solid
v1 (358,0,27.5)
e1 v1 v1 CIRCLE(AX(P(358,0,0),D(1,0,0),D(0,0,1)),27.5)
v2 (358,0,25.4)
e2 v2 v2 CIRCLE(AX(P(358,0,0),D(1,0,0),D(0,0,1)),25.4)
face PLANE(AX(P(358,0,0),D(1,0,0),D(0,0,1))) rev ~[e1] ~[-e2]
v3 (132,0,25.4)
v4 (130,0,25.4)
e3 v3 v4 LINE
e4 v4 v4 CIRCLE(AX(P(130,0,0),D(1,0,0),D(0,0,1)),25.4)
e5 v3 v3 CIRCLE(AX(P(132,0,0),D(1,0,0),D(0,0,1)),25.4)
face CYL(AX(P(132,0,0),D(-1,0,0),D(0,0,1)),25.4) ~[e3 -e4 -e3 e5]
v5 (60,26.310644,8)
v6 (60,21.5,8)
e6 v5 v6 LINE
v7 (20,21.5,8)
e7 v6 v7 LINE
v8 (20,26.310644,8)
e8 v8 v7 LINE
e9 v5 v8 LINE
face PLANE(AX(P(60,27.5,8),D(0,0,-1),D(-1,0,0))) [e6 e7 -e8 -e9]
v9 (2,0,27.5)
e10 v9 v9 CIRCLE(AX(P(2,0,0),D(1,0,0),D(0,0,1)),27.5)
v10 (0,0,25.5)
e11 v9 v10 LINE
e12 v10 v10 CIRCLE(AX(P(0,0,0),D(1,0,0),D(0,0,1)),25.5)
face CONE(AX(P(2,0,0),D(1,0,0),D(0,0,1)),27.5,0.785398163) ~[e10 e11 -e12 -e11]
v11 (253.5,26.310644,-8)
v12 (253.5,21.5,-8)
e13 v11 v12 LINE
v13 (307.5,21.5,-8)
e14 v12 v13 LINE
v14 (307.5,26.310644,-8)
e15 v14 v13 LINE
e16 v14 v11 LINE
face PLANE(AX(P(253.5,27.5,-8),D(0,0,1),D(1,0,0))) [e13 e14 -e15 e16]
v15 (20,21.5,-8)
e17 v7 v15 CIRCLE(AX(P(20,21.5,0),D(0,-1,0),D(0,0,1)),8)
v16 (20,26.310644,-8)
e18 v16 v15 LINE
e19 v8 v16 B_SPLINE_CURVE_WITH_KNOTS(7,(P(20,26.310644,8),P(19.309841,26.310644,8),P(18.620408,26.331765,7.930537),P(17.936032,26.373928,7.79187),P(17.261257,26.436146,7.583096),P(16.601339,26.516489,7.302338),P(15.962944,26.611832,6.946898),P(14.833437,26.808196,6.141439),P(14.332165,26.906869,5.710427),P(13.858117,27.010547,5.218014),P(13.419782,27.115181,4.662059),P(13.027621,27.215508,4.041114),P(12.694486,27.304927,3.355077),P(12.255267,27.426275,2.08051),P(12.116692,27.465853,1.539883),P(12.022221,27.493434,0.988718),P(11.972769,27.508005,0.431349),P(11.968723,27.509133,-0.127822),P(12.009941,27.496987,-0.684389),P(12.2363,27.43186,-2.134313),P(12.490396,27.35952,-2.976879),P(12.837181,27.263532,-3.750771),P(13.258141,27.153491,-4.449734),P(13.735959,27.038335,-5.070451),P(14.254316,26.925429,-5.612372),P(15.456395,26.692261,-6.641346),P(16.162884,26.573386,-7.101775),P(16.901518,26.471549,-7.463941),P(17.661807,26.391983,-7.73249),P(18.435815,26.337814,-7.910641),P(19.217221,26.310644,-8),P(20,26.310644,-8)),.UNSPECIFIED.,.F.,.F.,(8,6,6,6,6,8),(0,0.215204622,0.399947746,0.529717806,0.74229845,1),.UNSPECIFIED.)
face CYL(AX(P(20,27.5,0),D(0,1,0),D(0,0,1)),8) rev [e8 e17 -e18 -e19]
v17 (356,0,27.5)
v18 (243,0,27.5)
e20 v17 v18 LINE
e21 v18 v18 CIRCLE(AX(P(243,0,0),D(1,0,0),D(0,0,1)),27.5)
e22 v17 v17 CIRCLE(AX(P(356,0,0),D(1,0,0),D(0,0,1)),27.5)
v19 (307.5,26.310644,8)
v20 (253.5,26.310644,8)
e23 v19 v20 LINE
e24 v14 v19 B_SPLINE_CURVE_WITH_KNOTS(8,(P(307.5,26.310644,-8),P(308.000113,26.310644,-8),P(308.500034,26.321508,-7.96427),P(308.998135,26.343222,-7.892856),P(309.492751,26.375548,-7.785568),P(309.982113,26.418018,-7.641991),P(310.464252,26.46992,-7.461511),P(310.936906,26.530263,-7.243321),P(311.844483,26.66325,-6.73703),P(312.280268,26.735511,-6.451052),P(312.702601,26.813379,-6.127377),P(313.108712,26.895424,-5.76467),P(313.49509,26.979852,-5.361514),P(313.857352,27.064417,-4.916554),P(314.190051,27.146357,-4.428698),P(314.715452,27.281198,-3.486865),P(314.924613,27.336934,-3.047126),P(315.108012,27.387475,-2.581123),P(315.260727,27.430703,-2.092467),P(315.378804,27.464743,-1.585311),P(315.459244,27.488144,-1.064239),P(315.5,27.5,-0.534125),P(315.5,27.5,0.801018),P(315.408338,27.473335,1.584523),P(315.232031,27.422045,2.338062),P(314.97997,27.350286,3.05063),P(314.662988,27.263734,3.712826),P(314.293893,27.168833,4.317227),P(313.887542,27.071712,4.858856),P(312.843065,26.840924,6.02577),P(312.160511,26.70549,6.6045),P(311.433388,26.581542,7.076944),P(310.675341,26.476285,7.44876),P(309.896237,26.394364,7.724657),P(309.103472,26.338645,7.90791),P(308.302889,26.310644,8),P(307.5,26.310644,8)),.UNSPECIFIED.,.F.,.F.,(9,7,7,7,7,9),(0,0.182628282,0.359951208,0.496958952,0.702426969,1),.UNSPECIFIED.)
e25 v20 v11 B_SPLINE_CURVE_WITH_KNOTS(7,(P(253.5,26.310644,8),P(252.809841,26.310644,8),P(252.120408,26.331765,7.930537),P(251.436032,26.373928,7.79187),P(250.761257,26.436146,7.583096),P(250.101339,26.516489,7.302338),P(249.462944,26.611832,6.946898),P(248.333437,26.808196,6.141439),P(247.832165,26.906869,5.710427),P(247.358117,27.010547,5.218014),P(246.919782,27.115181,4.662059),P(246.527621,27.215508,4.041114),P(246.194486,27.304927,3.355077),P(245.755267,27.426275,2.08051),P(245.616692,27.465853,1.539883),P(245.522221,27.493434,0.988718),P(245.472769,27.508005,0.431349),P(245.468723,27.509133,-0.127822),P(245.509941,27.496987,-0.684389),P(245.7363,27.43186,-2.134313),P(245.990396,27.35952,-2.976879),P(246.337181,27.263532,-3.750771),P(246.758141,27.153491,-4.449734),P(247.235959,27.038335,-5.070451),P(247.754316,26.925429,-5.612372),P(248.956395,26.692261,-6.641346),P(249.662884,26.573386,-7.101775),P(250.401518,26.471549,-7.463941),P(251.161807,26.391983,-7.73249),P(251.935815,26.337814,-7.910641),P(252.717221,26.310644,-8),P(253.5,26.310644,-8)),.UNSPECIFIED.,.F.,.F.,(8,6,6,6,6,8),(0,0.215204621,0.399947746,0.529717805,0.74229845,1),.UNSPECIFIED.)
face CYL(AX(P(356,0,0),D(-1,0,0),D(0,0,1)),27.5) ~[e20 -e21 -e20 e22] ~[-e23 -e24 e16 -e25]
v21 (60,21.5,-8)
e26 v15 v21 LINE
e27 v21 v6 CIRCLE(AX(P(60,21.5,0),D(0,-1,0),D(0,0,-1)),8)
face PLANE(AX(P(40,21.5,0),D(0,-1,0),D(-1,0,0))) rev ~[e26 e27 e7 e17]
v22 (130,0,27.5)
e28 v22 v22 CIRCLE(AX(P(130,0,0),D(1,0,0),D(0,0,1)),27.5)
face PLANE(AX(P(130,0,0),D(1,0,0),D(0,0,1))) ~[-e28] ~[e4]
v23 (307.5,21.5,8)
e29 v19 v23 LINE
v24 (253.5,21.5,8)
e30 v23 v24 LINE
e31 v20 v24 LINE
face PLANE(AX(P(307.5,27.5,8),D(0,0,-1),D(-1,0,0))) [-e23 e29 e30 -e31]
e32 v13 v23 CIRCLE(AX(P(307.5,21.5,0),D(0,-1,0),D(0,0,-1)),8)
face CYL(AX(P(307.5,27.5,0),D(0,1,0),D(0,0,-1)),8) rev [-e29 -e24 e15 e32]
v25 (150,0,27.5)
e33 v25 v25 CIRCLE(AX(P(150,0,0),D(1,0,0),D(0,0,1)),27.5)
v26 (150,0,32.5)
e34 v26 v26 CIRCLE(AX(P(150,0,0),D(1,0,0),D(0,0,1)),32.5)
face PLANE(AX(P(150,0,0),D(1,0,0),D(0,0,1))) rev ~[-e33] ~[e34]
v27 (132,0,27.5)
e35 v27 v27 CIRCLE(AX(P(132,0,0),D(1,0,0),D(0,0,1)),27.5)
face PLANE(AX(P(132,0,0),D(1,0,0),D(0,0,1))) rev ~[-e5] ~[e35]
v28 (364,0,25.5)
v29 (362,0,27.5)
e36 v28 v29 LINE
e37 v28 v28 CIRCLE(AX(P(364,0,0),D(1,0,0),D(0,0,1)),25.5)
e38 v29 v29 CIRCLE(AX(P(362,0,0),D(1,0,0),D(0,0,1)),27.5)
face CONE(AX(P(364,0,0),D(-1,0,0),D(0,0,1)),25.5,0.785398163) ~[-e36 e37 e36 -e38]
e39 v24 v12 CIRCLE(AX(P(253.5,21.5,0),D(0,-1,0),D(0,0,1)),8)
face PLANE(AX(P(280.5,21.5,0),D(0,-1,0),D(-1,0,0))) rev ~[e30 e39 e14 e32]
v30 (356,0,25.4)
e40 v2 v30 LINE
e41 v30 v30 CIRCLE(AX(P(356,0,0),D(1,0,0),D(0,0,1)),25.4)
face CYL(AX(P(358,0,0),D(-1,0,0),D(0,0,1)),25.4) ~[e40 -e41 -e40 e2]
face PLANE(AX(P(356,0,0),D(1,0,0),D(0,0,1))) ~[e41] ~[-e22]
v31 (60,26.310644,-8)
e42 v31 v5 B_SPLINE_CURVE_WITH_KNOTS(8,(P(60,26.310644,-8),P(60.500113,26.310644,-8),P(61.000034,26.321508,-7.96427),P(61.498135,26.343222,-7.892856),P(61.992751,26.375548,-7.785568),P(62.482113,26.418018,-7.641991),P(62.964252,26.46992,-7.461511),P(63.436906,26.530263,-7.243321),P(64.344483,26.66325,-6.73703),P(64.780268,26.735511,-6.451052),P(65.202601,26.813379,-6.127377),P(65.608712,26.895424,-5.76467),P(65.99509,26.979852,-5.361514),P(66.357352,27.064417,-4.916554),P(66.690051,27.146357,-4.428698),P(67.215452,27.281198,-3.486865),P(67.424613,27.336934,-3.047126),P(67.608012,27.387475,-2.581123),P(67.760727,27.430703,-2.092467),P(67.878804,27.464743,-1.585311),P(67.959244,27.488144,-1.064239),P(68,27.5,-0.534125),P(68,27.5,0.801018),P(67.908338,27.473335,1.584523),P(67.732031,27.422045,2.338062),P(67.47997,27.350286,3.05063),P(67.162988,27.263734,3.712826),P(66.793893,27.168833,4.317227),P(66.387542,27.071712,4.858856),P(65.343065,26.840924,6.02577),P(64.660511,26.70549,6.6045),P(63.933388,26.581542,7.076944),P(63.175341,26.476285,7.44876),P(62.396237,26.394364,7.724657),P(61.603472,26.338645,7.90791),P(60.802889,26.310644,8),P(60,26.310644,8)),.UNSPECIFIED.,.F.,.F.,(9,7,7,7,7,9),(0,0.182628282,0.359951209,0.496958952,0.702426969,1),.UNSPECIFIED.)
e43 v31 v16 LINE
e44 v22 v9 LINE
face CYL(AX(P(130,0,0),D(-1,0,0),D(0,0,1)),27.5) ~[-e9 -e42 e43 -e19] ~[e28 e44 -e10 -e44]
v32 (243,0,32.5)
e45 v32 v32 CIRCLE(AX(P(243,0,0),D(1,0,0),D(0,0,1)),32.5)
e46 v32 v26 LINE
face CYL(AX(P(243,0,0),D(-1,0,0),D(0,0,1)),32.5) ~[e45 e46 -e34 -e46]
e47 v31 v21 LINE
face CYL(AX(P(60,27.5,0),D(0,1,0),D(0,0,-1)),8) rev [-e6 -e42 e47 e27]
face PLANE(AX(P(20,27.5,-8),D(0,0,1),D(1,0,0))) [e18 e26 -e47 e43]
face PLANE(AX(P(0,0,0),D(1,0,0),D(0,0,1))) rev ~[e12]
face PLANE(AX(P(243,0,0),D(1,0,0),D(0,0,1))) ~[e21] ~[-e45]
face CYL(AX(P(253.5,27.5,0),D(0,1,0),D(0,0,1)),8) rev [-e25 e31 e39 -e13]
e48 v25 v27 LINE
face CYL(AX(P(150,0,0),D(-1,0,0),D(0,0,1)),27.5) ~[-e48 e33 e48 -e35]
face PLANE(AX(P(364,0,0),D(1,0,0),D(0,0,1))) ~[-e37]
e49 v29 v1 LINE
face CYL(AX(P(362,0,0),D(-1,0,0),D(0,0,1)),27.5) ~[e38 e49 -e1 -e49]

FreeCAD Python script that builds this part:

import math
import FreeCAD as App
import Part
import Sketcher

V = App.Vector


def add_polygon(sketch, points):
    """Adds a closed chain of lines whose ends are joined by coincident constraints."""
    first, n = sketch.GeometryCount, len(points)
    for a, b in zip(points, points[1:] + points[:1]):
        sketch.addGeometry(Part.LineSegment(App.Vector(*a, 0), App.Vector(*b, 0)), False)
    for i in range(n):
        sketch.addConstraint(Sketcher.Constraint("Coincident", first + i, 2, first + (i + 1) % n, 1))

doc = App.newDocument("Part")
body = doc.addObject("PartDesign::Body", "Body")

sketch1 = body.newObject("Sketcher::SketchObject", "Sketch")
sketch1.AttachmentSupport = (doc.getObject("XY_Plane"), [""])
sketch1.MapMode = "FlatFace"
add_polygon(sketch1, [(0, 0), (364, 0), (364, 25.5), (362, 27.5), (358, 27.5), (358, 25.4), (356, 25.4), (356, 27.5), (243, 27.5), (243, 32.5), (150, 32.5), (150, 27.5), (132, 27.5), (132, 25.4), (130, 25.4), (130, 27.5), (2, 27.5), (0, 25.5)])
sketch1.addConstraint(Sketcher.Constraint("Horizontal", 0))
sketch1.addConstraint(Sketcher.Constraint("Vertical", 1))
sketch1.addConstraint(Sketcher.Constraint("Horizontal", 3))
sketch1.addConstraint(Sketcher.Constraint("Vertical", 4))
sketch1.addConstraint(Sketcher.Constraint("Horizontal", 5))
sketch1.addConstraint(Sketcher.Constraint("Vertical", 6))
sketch1.addConstraint(Sketcher.Constraint("Horizontal", 7))
sketch1.addConstraint(Sketcher.Constraint("Vertical", 8))
sketch1.addConstraint(Sketcher.Constraint("Horizontal", 9))
sketch1.addConstraint(Sketcher.Constraint("Vertical", 10))
sketch1.addConstraint(Sketcher.Constraint("Horizontal", 11))
sketch1.addConstraint(Sketcher.Constraint("Vertical", 12))
sketch1.addConstraint(Sketcher.Constraint("Horizontal", 13))
sketch1.addConstraint(Sketcher.Constraint("Vertical", 14))
sketch1.addConstraint(Sketcher.Constraint("Horizontal", 15))
sketch1.addConstraint(Sketcher.Constraint("Vertical", 17))
sketch1.addConstraint(Sketcher.Constraint("Coincident", 17, 2, -1, 1))
sketch1.addConstraint(Sketcher.Constraint("Perpendicular", 2, 16))
sketch1.addConstraint(Sketcher.Constraint("Horizontal", 3, 2, 6, 2))
sketch1.addConstraint(Sketcher.Constraint("Horizontal", 7, 2, 10, 2))
sketch1.addConstraint(Sketcher.Constraint("Horizontal", 5, 2, 12, 2))
sketch1.addConstraint(Sketcher.Constraint("Horizontal", 11, 2, 14, 2))
sketch1.addConstraint(Sketcher.Constraint("Horizontal", 1, 2, 16, 2))
sketch1.addConstraint(Sketcher.Constraint("Equal", 5, 13))
sketch1.addConstraint(Sketcher.Constraint("Equal", 2, 16))
sketch1.addConstraint(Sketcher.Constraint("DistanceX", 0, 1, 0, 2, 364.0))
sketch1.addConstraint(Sketcher.Constraint("DistanceX", 3, 2, 3, 1, 4.0))
sketch1.addConstraint(Sketcher.Constraint("DistanceX", 5, 2, 5, 1, 2.0))
sketch1.addConstraint(Sketcher.Constraint("DistanceX", 7, 2, 7, 1, 113.0))
sketch1.addConstraint(Sketcher.Constraint("DistanceX", 9, 2, 9, 1, 93.0))
sketch1.addConstraint(Sketcher.Constraint("DistanceX", 11, 2, 11, 1, 18.0))
sketch1.addConstraint(Sketcher.Constraint("DistanceX", 15, 2, 15, 1, 128.0))
sketch1.addConstraint(Sketcher.Constraint("DistanceY", 8, 1, 8, 2, 5.0))
sketch1.addConstraint(Sketcher.Constraint("DistanceY", 1, 1, 1, 2, 25.5))
sketch1.addConstraint(Sketcher.Constraint("DistanceY", 4, 2, 4, 1, 2.1))
revolution = body.newObject("PartDesign::Revolution", "Revolution")
revolution.Profile = sketch1
revolution.ReferenceAxis = (sketch1, ["H_Axis"])
revolution.Angle = 360

sketch2 = body.newObject("Sketcher::SketchObject", "Sketch001")
sketch2.AttachmentSupport = (doc.getObject("XZ_Plane"), [""])
sketch2.MapMode = "FlatFace"
sketch2.AttachmentOffset = App.Placement(V(0, 0, -27.5), App.Rotation())
sketch2.addGeometry(Part.LineSegment(V(308, -8, 0), V(254, -8, 0)), False)
sketch2.addGeometry(Part.ArcOfCircle(Part.Circle(V(254, 0, 0), V(0, 0, 1), 8), math.radians(90), math.radians(270)), False)
sketch2.addGeometry(Part.LineSegment(V(254, 8, 0), V(308, 8, 0)), False)
sketch2.addGeometry(Part.ArcOfCircle(Part.Circle(V(308, 0, 0), V(0, 0, 1), 8), math.radians(-90), math.radians(90)), False)
sketch2.addConstraint(Sketcher.Constraint("Tangent", 0, 2, 1, 2))
sketch2.addConstraint(Sketcher.Constraint("Tangent", 1, 1, 2, 1))
sketch2.addConstraint(Sketcher.Constraint("Tangent", 2, 2, 3, 2))
sketch2.addConstraint(Sketcher.Constraint("Tangent", 3, 1, 0, 1))
sketch2.addConstraint(Sketcher.Constraint("Horizontal", 0))
sketch2.addConstraint(Sketcher.Constraint("Horizontal", 2))
sketch2.addConstraint(Sketcher.Constraint("PointOnObject", 1, 3, -1))
sketch2.addConstraint(Sketcher.Constraint("Radius", 1, 8.0))
sketch2.addConstraint(Sketcher.Constraint("DistanceX", 0, 2, 0, 1, 54.0))
sketch2.addConstraint(Sketcher.Constraint("DistanceX", -1, 1, 1, 3, 253.5))
pocket1 = body.newObject("PartDesign::Pocket", "Pocket")
pocket1.Profile = sketch2
pocket1.Length = 6
pocket1.Reversed = True

sketch3 = body.newObject("Sketcher::SketchObject", "Sketch002")
sketch3.AttachmentSupport = (doc.getObject("XZ_Plane"), [""])
sketch3.MapMode = "FlatFace"
sketch3.AttachmentOffset = App.Placement(V(0, 0, -27.5), App.Rotation())
sketch3.addGeometry(Part.LineSegment(V(60, -8, 0), V(20, -8, 0)), False)
sketch3.addGeometry(Part.ArcOfCircle(Part.Circle(V(20, 0, 0), V(0, 0, 1), 8), math.radians(90), math.radians(270)), False)
sketch3.addGeometry(Part.LineSegment(V(20, 8, 0), V(60, 8, 0)), False)
sketch3.addGeometry(Part.ArcOfCircle(Part.Circle(V(60, 0, 0), V(0, 0, 1), 8), math.radians(-90), math.radians(90)), False)
sketch3.addConstraint(Sketcher.Constraint("Tangent", 0, 2, 1, 2))
sketch3.addConstraint(Sketcher.Constraint("Tangent", 1, 1, 2, 1))
sketch3.addConstraint(Sketcher.Constraint("Tangent", 2, 2, 3, 2))
sketch3.addConstraint(Sketcher.Constraint("Tangent", 3, 1, 0, 1))
sketch3.addConstraint(Sketcher.Constraint("Horizontal", 0))
sketch3.addConstraint(Sketcher.Constraint("Horizontal", 2))
sketch3.addConstraint(Sketcher.Constraint("PointOnObject", 1, 3, -1))
sketch3.addConstraint(Sketcher.Constraint("Radius", 1, 8.0))
sketch3.addConstraint(Sketcher.Constraint("DistanceX", 0, 2, 0, 1, 40.0))
sketch3.addConstraint(Sketcher.Constraint("DistanceX", -1, 1, 1, 3, 20.0))
pocket2 = body.newObject("PartDesign::Pocket", "Pocket001")
pocket2.Profile = sketch3
pocket2.Length = 6
pocket2.Reversed = True

doc.recompute()
